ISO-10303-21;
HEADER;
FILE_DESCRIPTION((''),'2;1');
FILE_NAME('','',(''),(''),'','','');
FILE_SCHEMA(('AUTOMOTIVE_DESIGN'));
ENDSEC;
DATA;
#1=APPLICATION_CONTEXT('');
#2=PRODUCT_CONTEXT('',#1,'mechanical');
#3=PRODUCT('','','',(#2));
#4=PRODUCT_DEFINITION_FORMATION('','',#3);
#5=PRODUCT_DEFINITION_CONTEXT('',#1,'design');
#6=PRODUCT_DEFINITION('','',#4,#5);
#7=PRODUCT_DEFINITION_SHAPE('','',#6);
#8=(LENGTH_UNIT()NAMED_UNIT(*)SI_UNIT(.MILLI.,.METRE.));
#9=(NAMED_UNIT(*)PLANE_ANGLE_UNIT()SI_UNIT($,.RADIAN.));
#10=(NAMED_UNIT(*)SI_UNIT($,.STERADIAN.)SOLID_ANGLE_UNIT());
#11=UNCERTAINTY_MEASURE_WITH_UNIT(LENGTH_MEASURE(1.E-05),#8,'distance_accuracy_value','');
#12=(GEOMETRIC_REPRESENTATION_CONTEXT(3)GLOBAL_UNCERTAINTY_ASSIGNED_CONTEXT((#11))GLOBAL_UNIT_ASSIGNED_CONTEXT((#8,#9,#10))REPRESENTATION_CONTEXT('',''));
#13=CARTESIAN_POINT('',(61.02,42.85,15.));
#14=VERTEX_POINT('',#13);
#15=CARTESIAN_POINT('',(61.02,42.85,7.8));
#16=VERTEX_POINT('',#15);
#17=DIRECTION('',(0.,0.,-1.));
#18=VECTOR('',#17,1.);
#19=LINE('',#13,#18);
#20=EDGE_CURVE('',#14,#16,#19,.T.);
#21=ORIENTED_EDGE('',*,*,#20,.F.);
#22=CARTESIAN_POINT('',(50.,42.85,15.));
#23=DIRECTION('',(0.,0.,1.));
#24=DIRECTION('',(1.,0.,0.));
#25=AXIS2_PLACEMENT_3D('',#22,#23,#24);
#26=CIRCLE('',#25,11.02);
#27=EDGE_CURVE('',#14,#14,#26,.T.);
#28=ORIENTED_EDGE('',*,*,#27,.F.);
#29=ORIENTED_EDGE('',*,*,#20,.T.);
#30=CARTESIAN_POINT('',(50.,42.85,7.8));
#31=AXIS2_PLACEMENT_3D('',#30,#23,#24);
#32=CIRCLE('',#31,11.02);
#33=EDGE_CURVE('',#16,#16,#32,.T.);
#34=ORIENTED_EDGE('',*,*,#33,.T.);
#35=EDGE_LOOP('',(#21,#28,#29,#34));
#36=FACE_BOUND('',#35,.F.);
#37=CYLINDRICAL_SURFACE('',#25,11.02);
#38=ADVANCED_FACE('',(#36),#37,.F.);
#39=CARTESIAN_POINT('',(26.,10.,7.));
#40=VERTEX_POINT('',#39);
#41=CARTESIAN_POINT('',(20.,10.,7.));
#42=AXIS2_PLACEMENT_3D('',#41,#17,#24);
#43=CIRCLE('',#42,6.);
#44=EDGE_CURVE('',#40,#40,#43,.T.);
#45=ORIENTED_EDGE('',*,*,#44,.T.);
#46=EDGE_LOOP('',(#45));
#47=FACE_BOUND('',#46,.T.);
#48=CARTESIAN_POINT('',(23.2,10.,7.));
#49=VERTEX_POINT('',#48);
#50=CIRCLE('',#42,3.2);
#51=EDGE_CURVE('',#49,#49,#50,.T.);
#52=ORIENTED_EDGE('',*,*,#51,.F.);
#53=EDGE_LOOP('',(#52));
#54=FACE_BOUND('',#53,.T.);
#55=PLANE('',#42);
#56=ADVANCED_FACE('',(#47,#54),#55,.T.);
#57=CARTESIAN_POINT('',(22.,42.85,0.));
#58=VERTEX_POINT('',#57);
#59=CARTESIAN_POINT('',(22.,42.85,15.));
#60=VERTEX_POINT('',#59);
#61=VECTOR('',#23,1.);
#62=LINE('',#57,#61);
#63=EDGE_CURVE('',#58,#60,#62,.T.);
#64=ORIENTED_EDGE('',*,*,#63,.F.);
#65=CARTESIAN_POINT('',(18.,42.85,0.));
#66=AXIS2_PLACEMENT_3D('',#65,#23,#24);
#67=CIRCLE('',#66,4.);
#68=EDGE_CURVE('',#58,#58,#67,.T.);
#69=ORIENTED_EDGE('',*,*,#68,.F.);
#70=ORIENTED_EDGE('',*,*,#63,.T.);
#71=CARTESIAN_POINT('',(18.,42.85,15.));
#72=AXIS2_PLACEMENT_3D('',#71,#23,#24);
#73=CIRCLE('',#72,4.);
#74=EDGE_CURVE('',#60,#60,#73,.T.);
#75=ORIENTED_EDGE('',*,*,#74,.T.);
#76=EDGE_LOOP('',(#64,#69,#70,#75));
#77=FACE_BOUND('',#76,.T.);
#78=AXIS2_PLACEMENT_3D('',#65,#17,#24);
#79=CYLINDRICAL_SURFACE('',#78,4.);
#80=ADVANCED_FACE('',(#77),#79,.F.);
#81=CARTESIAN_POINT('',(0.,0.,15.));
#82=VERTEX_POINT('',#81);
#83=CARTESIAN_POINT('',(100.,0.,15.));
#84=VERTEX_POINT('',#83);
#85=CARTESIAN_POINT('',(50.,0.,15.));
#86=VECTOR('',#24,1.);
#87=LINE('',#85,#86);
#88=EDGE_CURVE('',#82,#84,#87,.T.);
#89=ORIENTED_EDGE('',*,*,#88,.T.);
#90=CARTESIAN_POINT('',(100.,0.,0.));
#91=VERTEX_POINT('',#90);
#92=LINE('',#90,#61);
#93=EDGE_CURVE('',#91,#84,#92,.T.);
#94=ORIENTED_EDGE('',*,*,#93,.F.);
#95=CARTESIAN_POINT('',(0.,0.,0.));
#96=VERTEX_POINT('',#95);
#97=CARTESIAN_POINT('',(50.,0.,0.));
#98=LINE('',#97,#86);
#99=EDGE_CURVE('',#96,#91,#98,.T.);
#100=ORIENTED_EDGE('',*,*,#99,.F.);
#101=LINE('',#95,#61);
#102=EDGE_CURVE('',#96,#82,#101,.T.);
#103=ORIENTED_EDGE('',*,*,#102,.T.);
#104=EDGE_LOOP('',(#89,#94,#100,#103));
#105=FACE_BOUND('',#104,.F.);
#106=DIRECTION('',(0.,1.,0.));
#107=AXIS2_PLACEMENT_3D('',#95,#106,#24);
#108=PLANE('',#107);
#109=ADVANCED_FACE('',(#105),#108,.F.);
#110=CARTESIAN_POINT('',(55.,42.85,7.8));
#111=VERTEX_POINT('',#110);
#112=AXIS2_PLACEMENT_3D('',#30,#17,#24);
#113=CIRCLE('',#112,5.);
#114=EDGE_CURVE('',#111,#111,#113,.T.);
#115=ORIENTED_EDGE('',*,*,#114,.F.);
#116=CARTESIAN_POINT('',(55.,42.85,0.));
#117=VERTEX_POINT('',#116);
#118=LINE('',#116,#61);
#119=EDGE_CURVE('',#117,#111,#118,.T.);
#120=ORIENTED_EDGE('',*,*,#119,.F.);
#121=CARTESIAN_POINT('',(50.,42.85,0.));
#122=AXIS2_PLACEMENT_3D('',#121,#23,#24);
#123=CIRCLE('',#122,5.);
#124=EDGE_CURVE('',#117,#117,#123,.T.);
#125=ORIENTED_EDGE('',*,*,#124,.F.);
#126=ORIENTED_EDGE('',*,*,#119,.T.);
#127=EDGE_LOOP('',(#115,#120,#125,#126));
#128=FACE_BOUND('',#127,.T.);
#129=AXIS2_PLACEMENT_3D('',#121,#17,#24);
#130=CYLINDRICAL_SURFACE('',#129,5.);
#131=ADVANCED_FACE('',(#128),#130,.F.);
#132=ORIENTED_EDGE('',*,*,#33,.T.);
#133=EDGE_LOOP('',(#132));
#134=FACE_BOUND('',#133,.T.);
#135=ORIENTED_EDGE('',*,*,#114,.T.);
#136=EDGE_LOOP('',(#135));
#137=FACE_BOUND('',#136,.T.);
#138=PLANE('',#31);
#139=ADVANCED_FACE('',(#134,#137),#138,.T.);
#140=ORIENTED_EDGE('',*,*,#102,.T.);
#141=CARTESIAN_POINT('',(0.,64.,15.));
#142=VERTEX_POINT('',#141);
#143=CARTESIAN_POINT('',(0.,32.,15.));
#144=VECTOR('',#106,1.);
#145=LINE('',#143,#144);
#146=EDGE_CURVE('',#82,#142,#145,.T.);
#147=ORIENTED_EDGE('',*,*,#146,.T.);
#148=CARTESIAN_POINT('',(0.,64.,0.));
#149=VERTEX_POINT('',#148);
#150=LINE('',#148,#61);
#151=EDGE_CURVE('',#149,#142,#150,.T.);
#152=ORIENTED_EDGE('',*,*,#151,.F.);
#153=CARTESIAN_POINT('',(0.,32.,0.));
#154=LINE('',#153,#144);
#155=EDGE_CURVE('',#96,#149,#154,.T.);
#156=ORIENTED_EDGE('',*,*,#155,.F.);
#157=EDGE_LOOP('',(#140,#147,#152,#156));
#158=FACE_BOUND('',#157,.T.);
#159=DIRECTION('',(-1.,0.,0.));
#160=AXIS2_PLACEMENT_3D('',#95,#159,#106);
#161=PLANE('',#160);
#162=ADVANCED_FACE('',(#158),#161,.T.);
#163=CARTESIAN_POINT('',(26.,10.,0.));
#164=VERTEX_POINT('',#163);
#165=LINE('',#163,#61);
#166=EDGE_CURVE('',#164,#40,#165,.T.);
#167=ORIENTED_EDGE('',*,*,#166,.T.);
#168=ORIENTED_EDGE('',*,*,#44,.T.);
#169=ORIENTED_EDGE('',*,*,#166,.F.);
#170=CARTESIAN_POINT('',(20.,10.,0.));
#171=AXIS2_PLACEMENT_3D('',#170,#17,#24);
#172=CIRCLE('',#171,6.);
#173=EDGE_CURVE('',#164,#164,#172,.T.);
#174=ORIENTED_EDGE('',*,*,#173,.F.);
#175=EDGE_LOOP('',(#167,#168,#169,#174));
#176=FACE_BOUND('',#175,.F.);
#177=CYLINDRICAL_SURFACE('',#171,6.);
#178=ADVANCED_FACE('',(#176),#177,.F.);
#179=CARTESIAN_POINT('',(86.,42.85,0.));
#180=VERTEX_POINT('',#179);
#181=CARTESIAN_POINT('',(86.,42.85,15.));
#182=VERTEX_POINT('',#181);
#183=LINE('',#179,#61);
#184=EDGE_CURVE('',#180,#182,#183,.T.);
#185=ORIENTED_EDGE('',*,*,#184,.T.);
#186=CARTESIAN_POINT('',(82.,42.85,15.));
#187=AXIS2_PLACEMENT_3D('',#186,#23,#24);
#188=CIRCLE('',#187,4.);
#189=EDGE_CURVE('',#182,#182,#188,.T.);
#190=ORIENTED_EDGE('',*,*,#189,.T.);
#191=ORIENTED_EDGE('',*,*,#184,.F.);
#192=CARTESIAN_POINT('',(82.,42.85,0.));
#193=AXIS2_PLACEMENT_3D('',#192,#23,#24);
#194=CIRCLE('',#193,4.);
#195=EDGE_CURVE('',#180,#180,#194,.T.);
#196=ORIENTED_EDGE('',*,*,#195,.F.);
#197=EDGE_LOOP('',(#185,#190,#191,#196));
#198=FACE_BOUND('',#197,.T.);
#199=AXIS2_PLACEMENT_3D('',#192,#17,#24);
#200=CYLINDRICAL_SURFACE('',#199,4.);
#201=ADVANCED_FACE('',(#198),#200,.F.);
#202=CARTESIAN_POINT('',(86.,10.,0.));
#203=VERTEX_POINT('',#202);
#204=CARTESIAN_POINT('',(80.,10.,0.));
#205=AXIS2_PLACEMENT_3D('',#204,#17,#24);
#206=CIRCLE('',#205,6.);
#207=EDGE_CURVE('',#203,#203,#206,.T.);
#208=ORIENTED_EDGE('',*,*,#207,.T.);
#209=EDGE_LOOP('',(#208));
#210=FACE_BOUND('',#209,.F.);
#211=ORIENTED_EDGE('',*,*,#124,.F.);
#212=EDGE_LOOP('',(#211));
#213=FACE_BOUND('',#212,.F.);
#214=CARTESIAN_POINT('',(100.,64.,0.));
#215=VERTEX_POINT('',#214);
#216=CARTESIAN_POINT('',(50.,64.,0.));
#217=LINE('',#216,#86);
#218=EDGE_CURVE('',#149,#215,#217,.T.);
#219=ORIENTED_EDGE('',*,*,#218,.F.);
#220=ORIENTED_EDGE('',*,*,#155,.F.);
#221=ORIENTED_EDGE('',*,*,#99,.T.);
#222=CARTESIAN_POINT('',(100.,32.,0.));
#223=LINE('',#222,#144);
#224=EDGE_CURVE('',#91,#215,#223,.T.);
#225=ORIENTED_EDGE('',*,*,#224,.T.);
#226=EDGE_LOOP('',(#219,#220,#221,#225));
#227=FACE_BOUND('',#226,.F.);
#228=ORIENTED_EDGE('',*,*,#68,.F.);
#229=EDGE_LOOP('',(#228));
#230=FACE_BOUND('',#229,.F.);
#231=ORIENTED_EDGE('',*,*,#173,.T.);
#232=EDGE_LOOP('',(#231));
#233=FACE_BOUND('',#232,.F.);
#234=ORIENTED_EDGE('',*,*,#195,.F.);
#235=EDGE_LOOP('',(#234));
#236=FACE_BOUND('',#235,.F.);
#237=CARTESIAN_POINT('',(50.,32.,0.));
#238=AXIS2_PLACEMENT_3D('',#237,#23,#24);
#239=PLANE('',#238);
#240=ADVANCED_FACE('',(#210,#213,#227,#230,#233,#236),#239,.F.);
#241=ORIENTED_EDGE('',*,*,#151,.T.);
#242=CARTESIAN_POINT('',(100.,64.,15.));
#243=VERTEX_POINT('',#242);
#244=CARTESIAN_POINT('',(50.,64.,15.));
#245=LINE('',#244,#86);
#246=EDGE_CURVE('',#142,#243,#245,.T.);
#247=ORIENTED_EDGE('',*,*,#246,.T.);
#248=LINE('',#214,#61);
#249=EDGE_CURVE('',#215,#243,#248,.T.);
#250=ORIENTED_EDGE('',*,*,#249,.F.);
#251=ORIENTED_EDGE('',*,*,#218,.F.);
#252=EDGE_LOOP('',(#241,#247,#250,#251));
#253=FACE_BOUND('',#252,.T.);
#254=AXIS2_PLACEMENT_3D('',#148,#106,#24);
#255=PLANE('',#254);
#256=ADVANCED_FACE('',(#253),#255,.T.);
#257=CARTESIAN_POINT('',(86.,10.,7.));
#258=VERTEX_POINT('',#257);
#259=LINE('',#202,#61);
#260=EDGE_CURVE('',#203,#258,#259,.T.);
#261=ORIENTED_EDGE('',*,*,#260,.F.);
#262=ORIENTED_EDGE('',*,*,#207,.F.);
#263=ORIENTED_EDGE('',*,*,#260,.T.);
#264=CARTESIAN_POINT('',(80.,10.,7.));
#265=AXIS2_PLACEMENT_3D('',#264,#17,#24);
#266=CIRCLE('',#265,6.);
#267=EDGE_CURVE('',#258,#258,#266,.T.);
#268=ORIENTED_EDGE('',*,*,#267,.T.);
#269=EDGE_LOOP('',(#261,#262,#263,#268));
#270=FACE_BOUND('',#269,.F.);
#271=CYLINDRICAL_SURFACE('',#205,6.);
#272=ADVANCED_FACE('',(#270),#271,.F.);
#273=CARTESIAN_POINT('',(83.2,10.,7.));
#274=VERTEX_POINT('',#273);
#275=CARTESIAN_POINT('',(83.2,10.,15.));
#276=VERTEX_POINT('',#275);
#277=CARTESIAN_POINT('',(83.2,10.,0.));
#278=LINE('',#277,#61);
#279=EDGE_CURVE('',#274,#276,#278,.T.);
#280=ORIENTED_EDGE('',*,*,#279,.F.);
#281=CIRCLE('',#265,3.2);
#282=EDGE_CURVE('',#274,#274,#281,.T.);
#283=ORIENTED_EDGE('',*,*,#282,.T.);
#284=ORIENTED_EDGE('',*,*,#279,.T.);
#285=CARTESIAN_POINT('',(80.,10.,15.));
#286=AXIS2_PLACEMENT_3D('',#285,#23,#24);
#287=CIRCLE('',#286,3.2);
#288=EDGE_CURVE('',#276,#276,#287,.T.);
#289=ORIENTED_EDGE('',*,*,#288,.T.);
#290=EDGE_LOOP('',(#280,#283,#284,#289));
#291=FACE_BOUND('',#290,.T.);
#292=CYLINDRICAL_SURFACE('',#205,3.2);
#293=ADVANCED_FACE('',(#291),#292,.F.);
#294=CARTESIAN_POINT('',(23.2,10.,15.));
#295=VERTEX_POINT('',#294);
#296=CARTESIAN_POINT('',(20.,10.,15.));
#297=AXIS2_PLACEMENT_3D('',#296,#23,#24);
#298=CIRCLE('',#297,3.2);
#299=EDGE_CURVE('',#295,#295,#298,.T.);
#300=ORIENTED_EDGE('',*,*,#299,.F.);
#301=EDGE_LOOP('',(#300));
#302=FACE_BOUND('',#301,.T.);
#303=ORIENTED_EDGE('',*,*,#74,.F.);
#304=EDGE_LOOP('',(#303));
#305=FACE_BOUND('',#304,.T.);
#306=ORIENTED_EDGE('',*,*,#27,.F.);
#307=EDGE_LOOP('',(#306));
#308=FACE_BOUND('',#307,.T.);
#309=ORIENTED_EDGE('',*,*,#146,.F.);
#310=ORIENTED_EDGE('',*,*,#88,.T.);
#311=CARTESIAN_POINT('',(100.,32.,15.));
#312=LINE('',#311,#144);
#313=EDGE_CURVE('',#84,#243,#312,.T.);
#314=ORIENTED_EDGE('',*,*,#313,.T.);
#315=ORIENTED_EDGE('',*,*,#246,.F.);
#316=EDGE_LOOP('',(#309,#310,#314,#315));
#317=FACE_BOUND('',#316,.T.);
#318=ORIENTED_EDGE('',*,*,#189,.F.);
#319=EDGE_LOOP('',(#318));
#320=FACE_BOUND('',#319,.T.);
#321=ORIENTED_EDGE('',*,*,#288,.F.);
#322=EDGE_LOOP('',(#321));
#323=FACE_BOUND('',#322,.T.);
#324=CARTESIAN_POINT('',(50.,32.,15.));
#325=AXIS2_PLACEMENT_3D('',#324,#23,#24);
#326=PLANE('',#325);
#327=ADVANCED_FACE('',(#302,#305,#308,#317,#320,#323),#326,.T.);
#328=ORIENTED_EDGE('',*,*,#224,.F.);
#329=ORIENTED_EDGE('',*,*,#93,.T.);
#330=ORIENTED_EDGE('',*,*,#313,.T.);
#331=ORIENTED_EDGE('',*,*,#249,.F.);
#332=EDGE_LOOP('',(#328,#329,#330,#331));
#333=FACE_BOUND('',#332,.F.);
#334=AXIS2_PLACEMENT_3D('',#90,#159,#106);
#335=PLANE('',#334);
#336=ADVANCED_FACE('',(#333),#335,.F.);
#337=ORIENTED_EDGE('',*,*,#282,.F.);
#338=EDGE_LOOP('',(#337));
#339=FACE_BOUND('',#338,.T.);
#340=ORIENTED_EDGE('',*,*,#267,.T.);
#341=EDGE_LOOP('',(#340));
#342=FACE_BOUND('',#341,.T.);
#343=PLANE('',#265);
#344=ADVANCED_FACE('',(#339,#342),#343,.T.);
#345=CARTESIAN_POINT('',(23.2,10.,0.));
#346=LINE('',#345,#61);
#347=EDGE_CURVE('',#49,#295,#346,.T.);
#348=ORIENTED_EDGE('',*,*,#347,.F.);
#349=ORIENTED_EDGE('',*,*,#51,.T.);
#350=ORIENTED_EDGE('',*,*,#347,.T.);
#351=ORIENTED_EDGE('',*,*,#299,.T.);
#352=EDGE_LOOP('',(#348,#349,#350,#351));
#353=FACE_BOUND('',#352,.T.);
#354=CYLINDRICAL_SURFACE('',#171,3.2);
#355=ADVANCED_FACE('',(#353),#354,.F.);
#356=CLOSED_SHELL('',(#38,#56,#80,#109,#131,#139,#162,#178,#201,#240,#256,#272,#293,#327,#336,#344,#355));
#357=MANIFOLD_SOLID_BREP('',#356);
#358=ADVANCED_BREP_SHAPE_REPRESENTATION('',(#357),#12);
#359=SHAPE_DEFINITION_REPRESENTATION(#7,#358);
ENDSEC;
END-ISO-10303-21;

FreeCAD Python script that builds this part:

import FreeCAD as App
import Part
import Sketcher
Q = App.Units.Quantity

doc = App.newDocument("Part")
body = doc.addObject("PartDesign::Body", "Body")

sketch1 = body.newObject("Sketcher::SketchObject", "Sketch")
sketch1.AttachmentSupport = (doc.getObject("XY_Plane"), [""])
sketch1.MapMode = "FlatFace"
sketch1.addGeometry([
    Part.LineSegment(App.Vector(0, 64, 0), App.Vector(0, 0, 0)),
    Part.LineSegment(App.Vector(0, 0, 0), App.Vector(100, 0, 0)),
    Part.LineSegment(App.Vector(100, 0, 0), App.Vector(100, 64, 0)),
    Part.LineSegment(App.Vector(100, 64, 0), App.Vector(0, 64, 0)),
    Part.Circle(App.Vector(20, 10, 0), App.Vector(0, 0, 1), 3.2),
    Part.Circle(App.Vector(80, 10, 0), App.Vector(0, 0, 1), 3.2),
    Part.Circle(App.Vector(18, 42.85, 0), App.Vector(0, 0, 1), 4),
    Part.Circle(App.Vector(50, 42.85, 0), App.Vector(0, 0, 1), 5),
    Part.Circle(App.Vector(82, 42.85, 0), App.Vector(0, 0, 1), 4),
], False)
sketch1.addConstraint([
    Sketcher.Constraint("Coincident", 0, 2, 1, 1),
    Sketcher.Constraint("Coincident", 1, 2, 2, 1),
    Sketcher.Constraint("Coincident", 2, 2, 3, 1),
    Sketcher.Constraint("Coincident", 3, 2, 0, 1),
    Sketcher.Constraint("Vertical", 0),
    Sketcher.Constraint("Horizontal", 1),
    Sketcher.Constraint("Vertical", 2),
    Sketcher.Constraint("Horizontal", 3),
    Sketcher.Constraint("Coincident", 0, 2, -1, 1),
    Sketcher.Constraint("Equal", 4, 5),
    Sketcher.Constraint("Equal", 6, 8),
    Sketcher.Constraint("Horizontal", 4, 3, 5, 3),
    Sketcher.Constraint("Horizontal", 6, 3, 7, 3),
    Sketcher.Constraint("Horizontal", 7, 3, 8, 3),
    Sketcher.Constraint("Diameter", 6, Q("8 mm")),
    Sketcher.Constraint("Diameter", 7, Q("10 mm")),
    Sketcher.Constraint("Diameter", 4, Q("6.4 mm")),
    Sketcher.Constraint("DistanceX", 1, 1, 1, 2, Q("100 mm")),
    Sketcher.Constraint("DistanceY", 0, 2, 0, 1, Q("64 mm")),
    Sketcher.Constraint("DistanceX", -1, 1, 4, 3, Q("20 mm")),
    Sketcher.Constraint("DistanceY", -1, 1, 4, 3, Q("10 mm")),
    Sketcher.Constraint("DistanceX", -1, 1, 5, 3, Q("80 mm")),
    Sketcher.Constraint("DistanceX", -1, 1, 6, 3, Q("18 mm")),
    Sketcher.Constraint("DistanceX", -1, 1, 7, 3, Q("50 mm")),
    Sketcher.Constraint("DistanceX", -1, 1, 8, 3, Q("82 mm")),
    Sketcher.Constraint("DistanceY", -1, 1, 6, 3, Q("42.85 mm")),
])
pad1 = body.newObject("PartDesign::Pad", "Pad")
pad1.Profile = sketch1
pad1.Length = 15

sketch2 = body.newObject("Sketcher::SketchObject", "Sketch001")
sketch2.AttachmentSupport = (doc.getObject("XY_Plane"), [""])
sketch2.MapMode = "FlatFace"
sketch2.AttachmentOffset = App.Placement(App.Vector(0, 0, 15), App.Rotation())
sketch2.addGeometry(Part.Circle(App.Vector(50, 42.85, 0), App.Vector(0, 0, 1), 11.02), False)
sketch2.addConstraint([
    Sketcher.Constraint("Diameter", 0, Q("22.04 mm")),
    Sketcher.Constraint("DistanceX", -1, 1, 0, 3, Q("50 mm")),
    Sketcher.Constraint("DistanceY", -1, 1, 0, 3, Q("42.85 mm")),
])
pocket1 = body.newObject("PartDesign::Pocket", "Pocket")
pocket1.Profile = sketch2
pocket1.Length = 7.2

sketch3 = body.newObject("Sketcher::SketchObject", "Sketch002")
sketch3.AttachmentSupport = (doc.getObject("XY_Plane"), [""])
sketch3.MapMode = "FlatFace"
sketch3.addGeometry([
    Part.Circle(App.Vector(20, 10, 0), App.Vector(0, 0, 1), 6),
    Part.Circle(App.Vector(80, 10, 0), App.Vector(0, 0, 1), 6),
], False)
sketch3.addConstraint([
    Sketcher.Constraint("Equal", 0, 1),
    Sketcher.Constraint("Horizontal", 0, 3, 1, 3),
    Sketcher.Constraint("Diameter", 0, Q("12 mm")),
    Sketcher.Constraint("DistanceX", -1, 1, 0, 3, Q("20 mm")),
    Sketcher.Constraint("DistanceY", -1, 1, 0, 3, Q("10 mm")),
    Sketcher.Constraint("DistanceX", -1, 1, 1, 3, Q("80 mm")),
])
pocket2 = body.newObject("PartDesign::Pocket", "Pocket001")
pocket2.Profile = sketch3
pocket2.Length = 7
pocket2.Reversed = True

doc.recompute()
